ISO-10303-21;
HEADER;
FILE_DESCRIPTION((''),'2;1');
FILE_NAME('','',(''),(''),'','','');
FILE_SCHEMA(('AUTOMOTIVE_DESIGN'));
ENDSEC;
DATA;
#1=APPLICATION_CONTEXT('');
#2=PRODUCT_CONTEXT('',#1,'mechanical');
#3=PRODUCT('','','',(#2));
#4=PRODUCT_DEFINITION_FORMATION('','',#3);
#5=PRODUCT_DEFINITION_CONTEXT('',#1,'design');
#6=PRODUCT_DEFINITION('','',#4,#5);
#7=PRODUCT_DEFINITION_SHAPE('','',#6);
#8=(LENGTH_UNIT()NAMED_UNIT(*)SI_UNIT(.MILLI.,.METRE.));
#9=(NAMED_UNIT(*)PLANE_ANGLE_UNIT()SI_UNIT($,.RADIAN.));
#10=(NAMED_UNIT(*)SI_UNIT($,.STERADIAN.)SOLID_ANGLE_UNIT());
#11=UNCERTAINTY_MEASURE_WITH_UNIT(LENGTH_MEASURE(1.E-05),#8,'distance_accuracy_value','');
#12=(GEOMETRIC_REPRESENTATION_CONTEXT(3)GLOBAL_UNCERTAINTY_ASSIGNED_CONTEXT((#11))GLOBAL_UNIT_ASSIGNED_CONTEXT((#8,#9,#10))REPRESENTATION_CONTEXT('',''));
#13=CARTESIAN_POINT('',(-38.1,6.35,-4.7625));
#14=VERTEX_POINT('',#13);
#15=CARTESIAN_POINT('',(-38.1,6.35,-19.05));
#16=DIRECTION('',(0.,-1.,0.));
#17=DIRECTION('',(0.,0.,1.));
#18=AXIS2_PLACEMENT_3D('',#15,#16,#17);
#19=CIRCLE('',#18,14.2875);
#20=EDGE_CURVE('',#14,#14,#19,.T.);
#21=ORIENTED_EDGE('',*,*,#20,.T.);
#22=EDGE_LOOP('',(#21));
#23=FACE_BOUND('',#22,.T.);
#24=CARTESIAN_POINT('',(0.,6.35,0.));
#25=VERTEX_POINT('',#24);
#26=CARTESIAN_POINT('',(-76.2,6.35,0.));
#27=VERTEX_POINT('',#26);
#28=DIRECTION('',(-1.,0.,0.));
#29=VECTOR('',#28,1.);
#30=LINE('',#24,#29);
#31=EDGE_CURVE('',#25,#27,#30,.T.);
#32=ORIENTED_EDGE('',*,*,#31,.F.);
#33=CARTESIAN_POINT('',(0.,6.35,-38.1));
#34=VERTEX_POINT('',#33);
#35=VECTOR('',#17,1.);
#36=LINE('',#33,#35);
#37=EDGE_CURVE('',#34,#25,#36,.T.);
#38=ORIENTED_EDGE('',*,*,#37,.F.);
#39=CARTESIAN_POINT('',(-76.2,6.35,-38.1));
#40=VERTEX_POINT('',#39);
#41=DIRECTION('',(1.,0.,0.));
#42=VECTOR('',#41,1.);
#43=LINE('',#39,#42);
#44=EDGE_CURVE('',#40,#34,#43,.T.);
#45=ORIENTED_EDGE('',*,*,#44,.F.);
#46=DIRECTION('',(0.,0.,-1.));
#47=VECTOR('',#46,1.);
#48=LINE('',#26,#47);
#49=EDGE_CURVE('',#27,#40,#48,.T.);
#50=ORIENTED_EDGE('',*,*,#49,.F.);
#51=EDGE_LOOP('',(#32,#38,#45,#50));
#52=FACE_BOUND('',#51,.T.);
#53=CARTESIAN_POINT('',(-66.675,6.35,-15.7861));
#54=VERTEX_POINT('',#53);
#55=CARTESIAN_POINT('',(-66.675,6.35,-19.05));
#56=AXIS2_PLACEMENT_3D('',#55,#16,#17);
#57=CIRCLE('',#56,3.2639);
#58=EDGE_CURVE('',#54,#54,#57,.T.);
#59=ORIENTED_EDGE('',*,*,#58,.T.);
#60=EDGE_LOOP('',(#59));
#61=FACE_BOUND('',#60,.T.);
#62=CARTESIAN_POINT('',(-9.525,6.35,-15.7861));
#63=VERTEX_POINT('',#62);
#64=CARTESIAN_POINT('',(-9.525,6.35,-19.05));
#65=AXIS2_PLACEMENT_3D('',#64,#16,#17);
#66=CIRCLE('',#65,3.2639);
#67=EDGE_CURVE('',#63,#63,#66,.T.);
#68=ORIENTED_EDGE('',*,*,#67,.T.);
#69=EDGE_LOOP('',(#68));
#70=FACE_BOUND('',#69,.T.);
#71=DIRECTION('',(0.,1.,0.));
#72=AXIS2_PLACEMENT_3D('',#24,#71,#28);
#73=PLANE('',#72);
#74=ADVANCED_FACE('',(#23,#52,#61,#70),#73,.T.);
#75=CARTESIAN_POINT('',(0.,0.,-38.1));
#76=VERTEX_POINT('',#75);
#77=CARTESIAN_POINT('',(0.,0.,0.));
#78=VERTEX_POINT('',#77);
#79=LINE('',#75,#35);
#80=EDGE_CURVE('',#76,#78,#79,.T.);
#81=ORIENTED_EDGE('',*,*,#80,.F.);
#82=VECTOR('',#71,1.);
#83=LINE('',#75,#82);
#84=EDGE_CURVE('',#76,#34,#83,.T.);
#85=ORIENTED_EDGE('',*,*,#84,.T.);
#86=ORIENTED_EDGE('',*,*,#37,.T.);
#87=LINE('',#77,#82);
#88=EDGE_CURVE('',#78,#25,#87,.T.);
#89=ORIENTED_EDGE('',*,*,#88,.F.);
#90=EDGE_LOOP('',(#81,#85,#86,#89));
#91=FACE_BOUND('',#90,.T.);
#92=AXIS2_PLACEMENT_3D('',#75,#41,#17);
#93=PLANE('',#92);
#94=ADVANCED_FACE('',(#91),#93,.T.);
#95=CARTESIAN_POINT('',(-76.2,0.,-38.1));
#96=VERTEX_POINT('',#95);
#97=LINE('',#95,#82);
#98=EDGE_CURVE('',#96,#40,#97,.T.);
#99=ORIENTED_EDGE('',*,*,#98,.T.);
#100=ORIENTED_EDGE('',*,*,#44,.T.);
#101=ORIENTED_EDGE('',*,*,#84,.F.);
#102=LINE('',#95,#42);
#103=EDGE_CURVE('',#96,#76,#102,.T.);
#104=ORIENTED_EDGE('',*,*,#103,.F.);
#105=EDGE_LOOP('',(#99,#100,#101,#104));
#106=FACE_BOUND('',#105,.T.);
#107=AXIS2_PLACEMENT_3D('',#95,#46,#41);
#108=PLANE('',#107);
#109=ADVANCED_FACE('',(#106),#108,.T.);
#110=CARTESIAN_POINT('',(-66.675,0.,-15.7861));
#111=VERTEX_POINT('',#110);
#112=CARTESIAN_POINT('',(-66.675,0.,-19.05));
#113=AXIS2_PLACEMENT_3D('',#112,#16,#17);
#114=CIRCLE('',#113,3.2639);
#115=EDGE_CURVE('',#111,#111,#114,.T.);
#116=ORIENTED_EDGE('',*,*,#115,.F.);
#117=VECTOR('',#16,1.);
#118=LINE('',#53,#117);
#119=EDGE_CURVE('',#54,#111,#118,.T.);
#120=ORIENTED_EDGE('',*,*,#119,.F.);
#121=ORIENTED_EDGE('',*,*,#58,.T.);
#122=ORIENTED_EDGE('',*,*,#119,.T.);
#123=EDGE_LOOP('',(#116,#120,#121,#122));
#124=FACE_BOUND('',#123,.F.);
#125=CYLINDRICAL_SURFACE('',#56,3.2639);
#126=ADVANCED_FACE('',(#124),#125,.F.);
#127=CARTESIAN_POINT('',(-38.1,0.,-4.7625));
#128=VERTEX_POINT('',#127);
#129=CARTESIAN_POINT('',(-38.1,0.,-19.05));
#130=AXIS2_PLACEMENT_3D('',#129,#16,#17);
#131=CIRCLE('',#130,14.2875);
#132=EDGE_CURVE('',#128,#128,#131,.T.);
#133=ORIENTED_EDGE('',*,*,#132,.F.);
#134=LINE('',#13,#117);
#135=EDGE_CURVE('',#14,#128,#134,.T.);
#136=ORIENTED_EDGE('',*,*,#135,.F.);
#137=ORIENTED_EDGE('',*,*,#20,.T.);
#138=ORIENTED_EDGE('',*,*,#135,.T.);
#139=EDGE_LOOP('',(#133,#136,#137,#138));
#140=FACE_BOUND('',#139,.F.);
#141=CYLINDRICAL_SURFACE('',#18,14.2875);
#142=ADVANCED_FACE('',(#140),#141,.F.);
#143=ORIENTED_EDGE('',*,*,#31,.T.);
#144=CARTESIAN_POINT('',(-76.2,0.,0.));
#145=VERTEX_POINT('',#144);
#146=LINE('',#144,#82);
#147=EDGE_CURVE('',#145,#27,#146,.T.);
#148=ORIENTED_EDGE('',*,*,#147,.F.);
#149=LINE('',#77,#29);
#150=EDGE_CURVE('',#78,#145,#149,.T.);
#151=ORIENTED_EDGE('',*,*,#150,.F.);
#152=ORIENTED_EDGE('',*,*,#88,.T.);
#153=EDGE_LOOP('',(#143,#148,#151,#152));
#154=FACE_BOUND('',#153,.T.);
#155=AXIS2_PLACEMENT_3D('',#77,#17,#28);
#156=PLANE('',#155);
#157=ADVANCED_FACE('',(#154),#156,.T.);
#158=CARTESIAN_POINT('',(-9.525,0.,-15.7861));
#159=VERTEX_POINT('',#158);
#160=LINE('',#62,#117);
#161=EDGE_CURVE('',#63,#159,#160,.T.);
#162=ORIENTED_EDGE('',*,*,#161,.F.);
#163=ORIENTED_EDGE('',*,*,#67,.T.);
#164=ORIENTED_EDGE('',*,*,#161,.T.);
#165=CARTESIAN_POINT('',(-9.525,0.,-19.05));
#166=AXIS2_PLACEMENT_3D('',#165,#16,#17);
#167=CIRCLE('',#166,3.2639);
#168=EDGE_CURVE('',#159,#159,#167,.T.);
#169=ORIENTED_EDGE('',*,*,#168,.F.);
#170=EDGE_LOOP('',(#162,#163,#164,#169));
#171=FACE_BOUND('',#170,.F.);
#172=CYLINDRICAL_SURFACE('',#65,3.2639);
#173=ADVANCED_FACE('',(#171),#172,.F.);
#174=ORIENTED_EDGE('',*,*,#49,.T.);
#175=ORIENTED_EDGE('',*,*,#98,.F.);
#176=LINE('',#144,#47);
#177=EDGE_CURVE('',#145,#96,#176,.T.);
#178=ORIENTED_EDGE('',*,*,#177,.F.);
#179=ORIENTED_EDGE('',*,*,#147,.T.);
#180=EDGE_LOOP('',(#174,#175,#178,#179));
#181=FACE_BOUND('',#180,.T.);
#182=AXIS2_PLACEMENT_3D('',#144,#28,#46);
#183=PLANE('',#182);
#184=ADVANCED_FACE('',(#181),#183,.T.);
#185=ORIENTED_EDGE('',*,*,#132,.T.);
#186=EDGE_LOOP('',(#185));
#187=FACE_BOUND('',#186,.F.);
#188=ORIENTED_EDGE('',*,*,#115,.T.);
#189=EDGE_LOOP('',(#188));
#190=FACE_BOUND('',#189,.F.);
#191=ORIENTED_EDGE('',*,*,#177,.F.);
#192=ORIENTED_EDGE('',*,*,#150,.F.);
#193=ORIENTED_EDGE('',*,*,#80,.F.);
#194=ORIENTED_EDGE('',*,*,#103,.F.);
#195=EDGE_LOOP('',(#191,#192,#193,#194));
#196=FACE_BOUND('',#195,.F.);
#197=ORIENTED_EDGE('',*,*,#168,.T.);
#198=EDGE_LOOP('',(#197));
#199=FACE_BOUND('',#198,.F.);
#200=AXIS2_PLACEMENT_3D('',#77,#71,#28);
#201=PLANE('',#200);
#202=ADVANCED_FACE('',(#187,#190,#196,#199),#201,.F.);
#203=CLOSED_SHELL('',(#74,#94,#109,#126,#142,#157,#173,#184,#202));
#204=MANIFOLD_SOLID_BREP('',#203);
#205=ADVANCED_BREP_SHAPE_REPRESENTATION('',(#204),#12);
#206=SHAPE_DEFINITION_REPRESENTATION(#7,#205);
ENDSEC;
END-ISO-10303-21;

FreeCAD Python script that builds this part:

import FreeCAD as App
import Part
import Sketcher
from FreeCAD import Vector
Q = App.Units.Quantity

doc = App.newDocument("Part")
body = doc.addObject("PartDesign::Body", "Body")

sketch1 = body.newObject("Sketcher::SketchObject", "Sketch")
sketch1.AttachmentSupport = (doc.getObject("XZ_Plane"), [""])
sketch1.MapMode = "FlatFace"
sketch1.addGeometry(Part.LineSegment(Vector(-76, 0, 0), Vector(0, 0, 0)), False)
sketch1.addGeometry(Part.LineSegment(Vector(0, 0, 0), Vector(0, -38, 0)), False)
sketch1.addGeometry(Part.LineSegment(Vector(0, -38, 0), Vector(-76, -38, 0)), False)
sketch1.addGeometry(Part.LineSegment(Vector(-76, -38, 0), Vector(-76, 0, 0)), False)
sketch1.addConstraint(Sketcher.Constraint("Coincident", 0, 2, 1, 1))
sketch1.addConstraint(Sketcher.Constraint("Coincident", 1, 2, 2, 1))
sketch1.addConstraint(Sketcher.Constraint("Coincident", 2, 2, 3, 1))
sketch1.addConstraint(Sketcher.Constraint("Coincident", 3, 2, 0, 1))
sketch1.addConstraint(Sketcher.Constraint("Horizontal", 0))
sketch1.addConstraint(Sketcher.Constraint("Vertical", 1))
sketch1.addConstraint(Sketcher.Constraint("Horizontal", 2))
sketch1.addConstraint(Sketcher.Constraint("Vertical", 3))
sketch1.addConstraint(Sketcher.Constraint("Coincident", 0, 2, -1, 1))
sketch1.addConstraint(Sketcher.Constraint("DistanceX", 0, 1, 0, 2, Q("3 in")))
sketch1.addConstraint(Sketcher.Constraint("DistanceY", 1, 2, 1, 1, Q("1.5 in")))
pad1 = body.newObject("PartDesign::Pad", "Pad")
pad1.Profile = sketch1
pad1.Length = Q("0.25 in")
pad1.Reversed = True

sketch2 = body.newObject("Sketcher::SketchObject", "Sketch001")
sketch2.AttachmentSupport = (doc.getObject("XZ_Plane"), [""])
sketch2.MapMode = "FlatFace"
sketch2.AttachmentOffset = App.Placement(Vector(0, 0, -0.25 * 25.4), App.Rotation())
sketch2.addGeometry(Part.Circle(Vector(-38, -19, 0), Vector(0, 0, 1), 14), False)
sketch2.addConstraint(Sketcher.Constraint("Diameter", 0, Q("1.125 in")))
sketch2.addConstraint(Sketcher.Constraint("DistanceX", 0, 3, -1, 1, Q("1.5 in")))
sketch2.addConstraint(Sketcher.Constraint("DistanceY", 0, 3, -1, 1, Q("0.75 in")))
doc.recompute()
hole = body.newObject("PartDesign::Hole", "Hole")
hole.Profile = sketch2
hole.ThreadType = "None"
hole.Diameter = Q("1.125 in")
hole.DepthType = "ThroughAll"
hole.Reversed = True

sketch3 = body.newObject("Sketcher::SketchObject", "Sketch002")
sketch3.AttachmentSupport = (doc.getObject("XZ_Plane"), [""])
sketch3.MapMode = "FlatFace"
sketch3.AttachmentOffset = App.Placement(Vector(0, 0, -0.25 * 25.4), App.Rotation())
sketch3.addGeometry(Part.Circle(Vector(-66.7, -19.1, 0), Vector(0, 0, 1), 3.3), False)
sketch3.addGeometry(Part.Circle(Vector(-9.5, -19.1, 0), Vector(0, 0, 1), 3.3), False)
sketch3.addConstraint(Sketcher.Constraint("Equal", 0, 1))
sketch3.addConstraint(Sketcher.Constraint("Horizontal", 0, 3, 1, 3))
sketch3.addConstraint(Sketcher.Constraint("Diameter", 0, Q("0.257 in")))
sketch3.addConstraint(Sketcher.Constraint("DistanceY", 0, 3, -1, 1, Q("0.75 in")))
sketch3.addConstraint(Sketcher.Constraint("DistanceX", 0, 3, 1, 3, Q("2.25 in")))
sketch3.addConstraint(Sketcher.Constraint("DistanceX", 0, 3, -1, 1, Q("2.625 in")))
doc.recompute()
hole2 = body.newObject("PartDesign::Hole", "Hole001")
hole2.Profile = sketch3
hole2.ThreadType = "None"
hole2.Diameter = Q("0.257 in")
hole2.DepthType = "ThroughAll"
hole2.Reversed = True

doc.recompute()
